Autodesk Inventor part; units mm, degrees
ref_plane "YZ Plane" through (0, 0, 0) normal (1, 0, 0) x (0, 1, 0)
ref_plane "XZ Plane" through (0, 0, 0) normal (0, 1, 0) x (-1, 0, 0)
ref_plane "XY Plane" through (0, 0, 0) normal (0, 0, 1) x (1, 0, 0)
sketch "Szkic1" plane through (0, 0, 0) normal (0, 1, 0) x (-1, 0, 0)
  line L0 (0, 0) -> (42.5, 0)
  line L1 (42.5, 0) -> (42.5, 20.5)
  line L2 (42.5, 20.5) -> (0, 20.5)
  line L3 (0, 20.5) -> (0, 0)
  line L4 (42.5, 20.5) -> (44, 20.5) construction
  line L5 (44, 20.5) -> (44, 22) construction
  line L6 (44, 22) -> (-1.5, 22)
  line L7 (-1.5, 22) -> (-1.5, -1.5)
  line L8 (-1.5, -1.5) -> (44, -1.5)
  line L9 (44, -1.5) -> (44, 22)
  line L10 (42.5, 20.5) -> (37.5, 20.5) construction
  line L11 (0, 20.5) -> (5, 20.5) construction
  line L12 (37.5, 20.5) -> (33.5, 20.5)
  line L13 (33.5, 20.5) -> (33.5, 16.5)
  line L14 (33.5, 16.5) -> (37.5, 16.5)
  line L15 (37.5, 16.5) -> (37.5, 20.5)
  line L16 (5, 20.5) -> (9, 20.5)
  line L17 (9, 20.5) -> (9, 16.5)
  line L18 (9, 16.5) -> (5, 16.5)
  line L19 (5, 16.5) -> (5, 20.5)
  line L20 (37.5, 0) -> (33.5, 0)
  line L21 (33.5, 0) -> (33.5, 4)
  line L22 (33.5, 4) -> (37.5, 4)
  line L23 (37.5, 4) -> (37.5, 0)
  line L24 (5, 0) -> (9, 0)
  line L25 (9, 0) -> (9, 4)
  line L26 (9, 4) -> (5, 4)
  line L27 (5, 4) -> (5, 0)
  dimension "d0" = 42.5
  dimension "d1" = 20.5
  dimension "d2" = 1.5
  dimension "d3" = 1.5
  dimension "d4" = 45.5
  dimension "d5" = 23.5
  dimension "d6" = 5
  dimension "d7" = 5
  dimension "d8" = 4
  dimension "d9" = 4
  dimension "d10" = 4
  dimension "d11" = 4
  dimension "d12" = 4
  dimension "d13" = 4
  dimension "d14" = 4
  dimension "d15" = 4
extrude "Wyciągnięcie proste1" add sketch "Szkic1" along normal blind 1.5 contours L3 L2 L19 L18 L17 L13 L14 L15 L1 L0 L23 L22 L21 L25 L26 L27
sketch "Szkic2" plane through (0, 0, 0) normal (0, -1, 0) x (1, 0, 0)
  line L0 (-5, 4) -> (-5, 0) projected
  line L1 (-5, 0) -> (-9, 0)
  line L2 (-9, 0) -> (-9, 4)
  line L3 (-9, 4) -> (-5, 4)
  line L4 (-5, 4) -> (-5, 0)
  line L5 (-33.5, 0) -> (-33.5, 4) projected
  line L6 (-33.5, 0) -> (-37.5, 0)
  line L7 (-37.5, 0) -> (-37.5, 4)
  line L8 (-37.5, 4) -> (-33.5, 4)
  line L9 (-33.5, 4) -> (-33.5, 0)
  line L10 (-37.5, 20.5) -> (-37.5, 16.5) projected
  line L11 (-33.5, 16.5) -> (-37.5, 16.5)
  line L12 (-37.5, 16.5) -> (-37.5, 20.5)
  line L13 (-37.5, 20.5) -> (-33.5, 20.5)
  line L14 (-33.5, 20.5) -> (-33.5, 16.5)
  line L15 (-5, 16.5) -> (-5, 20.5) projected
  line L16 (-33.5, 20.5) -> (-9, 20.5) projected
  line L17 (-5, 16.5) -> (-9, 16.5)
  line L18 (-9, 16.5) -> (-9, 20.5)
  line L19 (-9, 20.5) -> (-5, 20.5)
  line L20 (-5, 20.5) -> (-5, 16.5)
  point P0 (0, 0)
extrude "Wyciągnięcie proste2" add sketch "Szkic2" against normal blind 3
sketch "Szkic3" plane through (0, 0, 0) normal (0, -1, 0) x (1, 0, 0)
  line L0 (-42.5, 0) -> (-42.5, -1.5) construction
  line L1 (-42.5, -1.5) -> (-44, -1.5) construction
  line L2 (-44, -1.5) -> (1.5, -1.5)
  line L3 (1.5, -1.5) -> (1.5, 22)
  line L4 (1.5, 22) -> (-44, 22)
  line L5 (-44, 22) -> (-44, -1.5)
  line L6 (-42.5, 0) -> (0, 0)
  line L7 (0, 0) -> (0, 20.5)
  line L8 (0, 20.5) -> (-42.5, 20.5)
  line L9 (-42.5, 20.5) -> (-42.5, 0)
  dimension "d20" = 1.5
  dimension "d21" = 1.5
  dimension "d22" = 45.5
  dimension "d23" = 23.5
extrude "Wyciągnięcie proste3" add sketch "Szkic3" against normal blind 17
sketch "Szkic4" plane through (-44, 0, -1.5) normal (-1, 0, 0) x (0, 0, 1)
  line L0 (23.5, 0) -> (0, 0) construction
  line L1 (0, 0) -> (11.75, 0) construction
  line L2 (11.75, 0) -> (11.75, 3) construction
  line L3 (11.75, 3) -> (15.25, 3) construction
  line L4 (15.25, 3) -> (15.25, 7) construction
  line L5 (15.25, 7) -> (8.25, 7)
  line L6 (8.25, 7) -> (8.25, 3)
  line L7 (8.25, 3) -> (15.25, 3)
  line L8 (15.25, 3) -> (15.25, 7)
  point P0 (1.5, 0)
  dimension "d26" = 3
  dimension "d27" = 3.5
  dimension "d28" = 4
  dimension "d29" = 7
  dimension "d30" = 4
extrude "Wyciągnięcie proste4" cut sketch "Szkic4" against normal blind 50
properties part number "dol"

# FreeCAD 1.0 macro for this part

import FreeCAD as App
import Part
import Sketcher


def add_polygon(sketch, points):
    """Adds a closed chain of lines whose ends are joined by coincident constraints."""
    first, n = sketch.GeometryCount, len(points)
    for a, b in zip(points, points[1:] + points[:1]):
        sketch.addGeometry(Part.LineSegment(App.Vector(*a, 0), App.Vector(*b, 0)), False)
    for i in range(n):
        sketch.addConstraint(Sketcher.Constraint("Coincident", first + i, 2, first + (i + 1) % n, 1))

doc = App.newDocument("Part")
params = doc.addObject("Spreadsheet::Sheet", "Params")
for row, (alias, value) in enumerate([
    ("sketch1_width", "5 mm"),
    ("sketch1_width2", "4 mm"),
    ("sketch1_height", "20.5 mm"),
    ("pad1_length", "1.5 mm"),
    ("sketch2_width", "4 mm"),
    ("pad2_length", "3 mm"),
    ("sketch3_width", "45.5 mm"),
    ("sketch3_height", "23.5 mm"),
    ("pad3_length", "17 mm"),
    ("sketch4_width", "4 mm"),
    ("sketch4_height", "7 mm"),
    ("pocket1_length", "50 mm"),
], start=1):
    params.set(f"A{row}", alias)
    params.set(f"B{row}", "=" + value)
    params.setAlias(f"B{row}", alias)

body = doc.addObject("PartDesign::Body", "Body")

# Sketch on XZ plane
sketch1 = body.newObject("Sketcher::SketchObject", "Sketch")
sketch1.AttachmentSupport = (doc.getObject("XZ_Plane"), [""])
sketch1.MapMode = "FlatFace"
add_polygon(sketch1, [(0, 20.5), (0, 0), (-5, 0), (-5, 4), (-9, 4), (-9, 0), (-33.5, 0), (-33.5, 4), (-37.5, 4), (-37.5, 0), (-42.5, 0), (-42.5, 20.5), (-37.5, 20.5), (-37.5, 16.5), (-33.5, 16.5), (-33.5, 20.5), (-9, 20.5), (-9, 16.5), (-5, 16.5), (-5, 20.5)])  # lines 0-19
sketch1.addConstraint([
    Sketcher.Constraint("Vertical", 0),
    Sketcher.Constraint("Horizontal", 1),
    Sketcher.Constraint("Vertical", 2),
    Sketcher.Constraint("Horizontal", 3),
    Sketcher.Constraint("Vertical", 4),
    Sketcher.Constraint("Horizontal", 5),
    Sketcher.Constraint("Vertical", 6),
    Sketcher.Constraint("Horizontal", 7),
    Sketcher.Constraint("Vertical", 8),
    Sketcher.Constraint("Horizontal", 9),
    Sketcher.Constraint("Vertical", 10),
    Sketcher.Constraint("Horizontal", 11),
    Sketcher.Constraint("Vertical", 12),
    Sketcher.Constraint("Horizontal", 13),
    Sketcher.Constraint("Vertical", 14),
    Sketcher.Constraint("Horizontal", 15),
    Sketcher.Constraint("Vertical", 16),
    Sketcher.Constraint("Horizontal", 17),
    Sketcher.Constraint("Vertical", 18),
    Sketcher.Constraint("Horizontal", 19),
    Sketcher.Constraint("Coincident", 0, 2, -1, 1),
    Sketcher.Constraint("PointOnObject", 4, 2, -1),
    Sketcher.Constraint("PointOnObject", 8, 2, -1),
    Sketcher.Constraint("Horizontal", 3, 2, 6, 2),
    Sketcher.Constraint("Horizontal", 11, 2, 14, 2),
    Sketcher.Constraint("Horizontal", 13, 2, 16, 2),
    Sketcher.Constraint("Horizontal", 15, 2, 18, 2),
    Sketcher.Constraint("Vertical", 8, 2, 11, 2),
    Sketcher.Constraint("Vertical", 6, 2, 13, 2),
    Sketcher.Constraint("Vertical", 4, 2, 15, 2),
    Sketcher.Constraint("Vertical", 2, 2, 17, 2),
    Sketcher.Constraint("Equal", 3, 7),
    Sketcher.Constraint("Equal", 1, 9),
    Sketcher.Constraint("Equal", 17, 2),
    Sketcher.Constraint("Equal", 8, 12),
    Sketcher.Constraint("DistanceX", 1, 2, 1, 1, 5.0),
    Sketcher.Constraint("DistanceX", 3, 2, 3, 1, 4.0),
    Sketcher.Constraint("DistanceY", 0, 2, 0, 1, 20.5),
    Sketcher.Constraint("DistanceX", 9, 2, -1, 1, 42.5),
])
sketch1.setExpression("Constraints[55]", "Params.sketch1_width")
sketch1.setExpression("Constraints[56]", "Params.sketch1_width2")
sketch1.setExpression("Constraints[57]", "Params.sketch1_height")
pad1 = body.newObject("PartDesign::Pad", "Pad")
pad1.Profile = sketch1
pad1.setExpression("Length", "Params.pad1_length")
pad1.Reversed = True

# Sketch on XZ plane
sketch2 = body.newObject("Sketcher::SketchObject", "Sketch001")
sketch2.AttachmentSupport = (doc.getObject("XZ_Plane"), [""])
sketch2.MapMode = "FlatFace"
add_polygon(sketch2, [(-5, 0), (-5, 4), (-9, 4), (-9, 0)])  # lines 0-3
add_polygon(sketch2, [(-37.5, 0), (-33.5, 0), (-33.5, 4), (-37.5, 4)])  # lines 4-7
add_polygon(sketch2, [(-33.5, 20.5), (-37.5, 20.5), (-37.5, 16.5), (-33.5, 16.5)])  # lines 8-11
add_polygon(sketch2, [(-5, 20.5), (-9, 20.5), (-9, 16.5), (-5, 16.5)])  # lines 12-15
sketch2.addConstraint([
    Sketcher.Constraint("Vertical", 0),
    Sketcher.Constraint("Horizontal", 1),
    Sketcher.Constraint("Vertical", 2),
    Sketcher.Constraint("Horizontal", 3),
    Sketcher.Constraint("Horizontal", 4),
    Sketcher.Constraint("Vertical", 5),
    Sketcher.Constraint("Horizontal", 6),
    Sketcher.Constraint("Vertical", 7),
    Sketcher.Constraint("Horizontal", 8),
    Sketcher.Constraint("Vertical", 9),
    Sketcher.Constraint("Horizontal", 10),
    Sketcher.Constraint("Vertical", 11),
    Sketcher.Constraint("Horizontal", 12),
    Sketcher.Constraint("Vertical", 13),
    Sketcher.Constraint("Horizontal", 14),
    Sketcher.Constraint("Vertical", 15),
    Sketcher.Constraint("PointOnObject", 2, 2, -1),
    Sketcher.Constraint("PointOnObject", 4, 2, -1),
    Sketcher.Constraint("Horizontal", 1, 2, 5, 2),
    Sketcher.Constraint("Horizontal", 11, 2, 12, 2),
    Sketcher.Constraint("Horizontal", 10, 2, 13, 2),
    Sketcher.Constraint("Vertical", 7, 2, 8, 2),
    Sketcher.Constraint("Vertical", 5, 2, 10, 2),
    Sketcher.Constraint("Vertical", 2, 2, 12, 2),
    Sketcher.Constraint("Vertical", 3, 2, 14, 2),
    Sketcher.Constraint("Equal", 3, 4),
    Sketcher.Constraint("Equal", 14, 0),
    Sketcher.Constraint("Equal", 7, 9),
    Sketcher.Constraint("DistanceX", 1, 2, 1, 1, 4.0),
    Sketcher.Constraint("DistanceX", 0, 2, -1, 1, 5.0),
    Sketcher.Constraint("DistanceX", 4, 2, -1, 1, 33.5),
    Sketcher.Constraint("DistanceY", -1, 1, 8, 2, 20.5),
])
sketch2.setExpression("Constraints[44]", "Params.sketch2_width")
pad2 = body.newObject("PartDesign::Pad", "Pad001")
pad2.Profile = sketch2
pad2.setExpression("Length", "Params.pad2_length")
pad2.Reversed = True

# Sketch on XZ plane
sketch3 = body.newObject("Sketcher::SketchObject", "Sketch002")
sketch3.AttachmentSupport = (doc.getObject("XZ_Plane"), [""])
sketch3.MapMode = "FlatFace"
add_polygon(sketch3, [(-44, 22), (-44, -2), (2, -2), (2, 22)])  # lines 0-3
add_polygon(sketch3, [(0, 0), (-42, 0), (-42, 20), (0, 20)])  # lines 4-7
sketch3.addConstraint([
    Sketcher.Constraint("Vertical", 0),
    Sketcher.Constraint("Horizontal", 1),
    Sketcher.Constraint("Vertical", 2),
    Sketcher.Constraint("Horizontal", 3),
    Sketcher.Constraint("Horizontal", 4),
    Sketcher.Constraint("Vertical", 5),
    Sketcher.Constraint("Horizontal", 6),
    Sketcher.Constraint("Vertical", 7),
    Sketcher.Constraint("Coincident", 7, 2, -1, 1),
    Sketcher.Constraint("DistanceX", 1, 1, 1, 2, 45.5),
    Sketcher.Constraint("DistanceY", 0, 2, 0, 1, 23.5),
    Sketcher.Constraint("DistanceY", 0, 2, -1, 1, 1.5),
    Sketcher.Constraint("DistanceX", -1, 1, 1, 2, 1.5),
    Sketcher.Constraint("DistanceX", 0, 2, 4, 2, 1.5),
    Sketcher.Constraint("DistanceY", 5, 2, 3, 2, 1.5),
])
sketch3.setExpression("Constraints[17]", "Params.sketch3_width")
sketch3.setExpression("Constraints[18]", "Params.sketch3_height")
pad3 = body.newObject("PartDesign::Pad", "Pad002")
pad3.Profile = sketch3
pad3.setExpression("Length", "Params.pad3_length")
pad3.Reversed = True

# Sketch on YZ plane
sketch4 = body.newObject("Sketcher::SketchObject", "Sketch003")
sketch4.AttachmentSupport = (doc.getObject("YZ_Plane"), [""])
sketch4.MapMode = "FlatFace"
sketch4.AttachmentOffset = App.Placement(App.Vector(0, 0, -44), App.Rotation())
add_polygon(sketch4, [(3, 13.8), (7, 13.8), (7, 6.8), (3, 6.8)])  # lines 0-3
sketch4.addConstraint([
    Sketcher.Constraint("Horizontal", 0),
    Sketcher.Constraint("Vertical", 1),
    Sketcher.Constraint("Horizontal", 2),
    Sketcher.Constraint("Vertical", 3),
    Sketcher.Constraint("DistanceX", 0, 1, 0, 2, 4.0),
    Sketcher.Constraint("DistanceY", 1, 2, 1, 1, 7.0),
    Sketcher.Constraint("DistanceX", -1, 1, 0, 2, 7.0),
    Sketcher.Constraint("DistanceY", -1, 1, 0, 2, 13.75),
])
sketch4.setExpression("Constraints[8]", "Params.sketch4_width")
sketch4.setExpression("Constraints[9]", "Params.sketch4_height")
pocket1 = body.newObject("PartDesign::Pocket", "Pocket")
pocket1.Profile = sketch4
pocket1.setExpression("Length", "Params.pocket1_length")
pocket1.Reversed = True

doc.recompute()
